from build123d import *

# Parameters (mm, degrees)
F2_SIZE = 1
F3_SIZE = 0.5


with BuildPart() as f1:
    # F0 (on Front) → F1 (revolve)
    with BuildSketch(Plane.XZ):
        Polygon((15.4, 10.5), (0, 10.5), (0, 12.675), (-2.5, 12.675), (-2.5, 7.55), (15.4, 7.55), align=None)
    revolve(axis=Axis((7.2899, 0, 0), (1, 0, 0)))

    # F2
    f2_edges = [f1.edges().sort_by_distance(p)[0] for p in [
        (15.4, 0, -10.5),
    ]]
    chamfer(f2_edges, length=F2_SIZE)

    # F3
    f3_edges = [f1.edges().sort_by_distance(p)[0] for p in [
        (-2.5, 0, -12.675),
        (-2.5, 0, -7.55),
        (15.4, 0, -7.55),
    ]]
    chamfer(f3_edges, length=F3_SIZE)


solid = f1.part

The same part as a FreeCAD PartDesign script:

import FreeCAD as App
import Part
import Sketcher
from FreeCAD import Vector
Q = App.Units.Quantity


def edges_at(feature, points):
    """Names of the edges that pass closest to the given points."""
    edges = feature.Shape.Edges
    near = lambda p: min(range(len(edges)), key=lambda i: edges[i].distToShape(Part.Vertex(*p))[0])
    return sorted({f"Edge{near(p) + 1}" for p in points})


def add_polygon(sketch, points):
    """Adds a closed chain of lines whose ends are joined by coincident constraints."""
    first, n = sketch.GeometryCount, len(points)
    for a, b in zip(points, points[1:] + points[:1]):
        sketch.addGeometry(Part.LineSegment(App.Vector(*a, 0), App.Vector(*b, 0)), False)
    for i in range(n):
        sketch.addConstraint(Sketcher.Constraint("Coincident", first + i, 2, first + (i + 1) % n, 1))

doc = App.newDocument("Part")
body = doc.addObject("PartDesign::Body", "Body")

# Sketch on XZ plane
sketch1 = doc.addObject("Sketcher::SketchObject", "Sketch")
body.addObject(sketch1)
sketch1.AttachmentSupport = (doc.XZ_Plane, [""])
sketch1.MapMode = "FlatFace"
add_polygon(sketch1, [(15.4, 10.5), (0, 10.5), (0, 12.7), (-2.5, 12.7), (-2.5, 7.5), (15.4, 7.5)])  # lines 0-5
sketch1.addConstraint(Sketcher.Constraint("Horizontal", 0))
sketch1.addConstraint(Sketcher.Constraint("Vertical", 1))
sketch1.addConstraint(Sketcher.Constraint("Horizontal", 2))
sketch1.addConstraint(Sketcher.Constraint("Vertical", 3))
sketch1.addConstraint(Sketcher.Constraint("Horizontal", 4))
sketch1.addConstraint(Sketcher.Constraint("Vertical", 5))
sketch1.addConstraint(Sketcher.Constraint("PointOnObject", 0, 2, -2))
sketch1.addConstraint(Sketcher.Constraint("DistanceX", 0, 2, 0, 1, Q("15.4 mm")))
sketch1.addConstraint(Sketcher.Constraint("DistanceX", 2, 2, 2, 1, Q("2.5 mm")))
sketch1.addConstraint(Sketcher.Constraint("DistanceY", 5, 1, 5, 2, Q("2.95 mm")))
sketch1.addConstraint(Sketcher.Constraint("DistanceY", -1, 1, 0, 2, Q("10.5 mm")))
sketch1.addConstraint(Sketcher.Constraint("DistanceY", 1, 1, 1, 2, Q("2.175 mm")))
revolution = doc.addObject("PartDesign::Revolution", "Revolution")
body.addObject(revolution)
revolution.Profile = sketch1
revolution.ReferenceAxis = (sketch1, ["H_Axis"])
revolution.Angle = 360
doc.recompute()

chamfer = doc.addObject("PartDesign::Chamfer", "Chamfer")
body.addObject(chamfer)
chamfer.Base = (revolution, edges_at(revolution, [(15.4, 0, -10.5)]))
chamfer.Size = 1
doc.recompute()

chamfer2 = doc.addObject("PartDesign::Chamfer", "Chamfer001")
body.addObject(chamfer2)
chamfer2.Base = (chamfer, edges_at(chamfer, [(-2.5, 0, -12.675), (-2.5, 0, -7.55), (15.4, 0, -7.55)]))
chamfer2.Size = 0.5

doc.recompute()
